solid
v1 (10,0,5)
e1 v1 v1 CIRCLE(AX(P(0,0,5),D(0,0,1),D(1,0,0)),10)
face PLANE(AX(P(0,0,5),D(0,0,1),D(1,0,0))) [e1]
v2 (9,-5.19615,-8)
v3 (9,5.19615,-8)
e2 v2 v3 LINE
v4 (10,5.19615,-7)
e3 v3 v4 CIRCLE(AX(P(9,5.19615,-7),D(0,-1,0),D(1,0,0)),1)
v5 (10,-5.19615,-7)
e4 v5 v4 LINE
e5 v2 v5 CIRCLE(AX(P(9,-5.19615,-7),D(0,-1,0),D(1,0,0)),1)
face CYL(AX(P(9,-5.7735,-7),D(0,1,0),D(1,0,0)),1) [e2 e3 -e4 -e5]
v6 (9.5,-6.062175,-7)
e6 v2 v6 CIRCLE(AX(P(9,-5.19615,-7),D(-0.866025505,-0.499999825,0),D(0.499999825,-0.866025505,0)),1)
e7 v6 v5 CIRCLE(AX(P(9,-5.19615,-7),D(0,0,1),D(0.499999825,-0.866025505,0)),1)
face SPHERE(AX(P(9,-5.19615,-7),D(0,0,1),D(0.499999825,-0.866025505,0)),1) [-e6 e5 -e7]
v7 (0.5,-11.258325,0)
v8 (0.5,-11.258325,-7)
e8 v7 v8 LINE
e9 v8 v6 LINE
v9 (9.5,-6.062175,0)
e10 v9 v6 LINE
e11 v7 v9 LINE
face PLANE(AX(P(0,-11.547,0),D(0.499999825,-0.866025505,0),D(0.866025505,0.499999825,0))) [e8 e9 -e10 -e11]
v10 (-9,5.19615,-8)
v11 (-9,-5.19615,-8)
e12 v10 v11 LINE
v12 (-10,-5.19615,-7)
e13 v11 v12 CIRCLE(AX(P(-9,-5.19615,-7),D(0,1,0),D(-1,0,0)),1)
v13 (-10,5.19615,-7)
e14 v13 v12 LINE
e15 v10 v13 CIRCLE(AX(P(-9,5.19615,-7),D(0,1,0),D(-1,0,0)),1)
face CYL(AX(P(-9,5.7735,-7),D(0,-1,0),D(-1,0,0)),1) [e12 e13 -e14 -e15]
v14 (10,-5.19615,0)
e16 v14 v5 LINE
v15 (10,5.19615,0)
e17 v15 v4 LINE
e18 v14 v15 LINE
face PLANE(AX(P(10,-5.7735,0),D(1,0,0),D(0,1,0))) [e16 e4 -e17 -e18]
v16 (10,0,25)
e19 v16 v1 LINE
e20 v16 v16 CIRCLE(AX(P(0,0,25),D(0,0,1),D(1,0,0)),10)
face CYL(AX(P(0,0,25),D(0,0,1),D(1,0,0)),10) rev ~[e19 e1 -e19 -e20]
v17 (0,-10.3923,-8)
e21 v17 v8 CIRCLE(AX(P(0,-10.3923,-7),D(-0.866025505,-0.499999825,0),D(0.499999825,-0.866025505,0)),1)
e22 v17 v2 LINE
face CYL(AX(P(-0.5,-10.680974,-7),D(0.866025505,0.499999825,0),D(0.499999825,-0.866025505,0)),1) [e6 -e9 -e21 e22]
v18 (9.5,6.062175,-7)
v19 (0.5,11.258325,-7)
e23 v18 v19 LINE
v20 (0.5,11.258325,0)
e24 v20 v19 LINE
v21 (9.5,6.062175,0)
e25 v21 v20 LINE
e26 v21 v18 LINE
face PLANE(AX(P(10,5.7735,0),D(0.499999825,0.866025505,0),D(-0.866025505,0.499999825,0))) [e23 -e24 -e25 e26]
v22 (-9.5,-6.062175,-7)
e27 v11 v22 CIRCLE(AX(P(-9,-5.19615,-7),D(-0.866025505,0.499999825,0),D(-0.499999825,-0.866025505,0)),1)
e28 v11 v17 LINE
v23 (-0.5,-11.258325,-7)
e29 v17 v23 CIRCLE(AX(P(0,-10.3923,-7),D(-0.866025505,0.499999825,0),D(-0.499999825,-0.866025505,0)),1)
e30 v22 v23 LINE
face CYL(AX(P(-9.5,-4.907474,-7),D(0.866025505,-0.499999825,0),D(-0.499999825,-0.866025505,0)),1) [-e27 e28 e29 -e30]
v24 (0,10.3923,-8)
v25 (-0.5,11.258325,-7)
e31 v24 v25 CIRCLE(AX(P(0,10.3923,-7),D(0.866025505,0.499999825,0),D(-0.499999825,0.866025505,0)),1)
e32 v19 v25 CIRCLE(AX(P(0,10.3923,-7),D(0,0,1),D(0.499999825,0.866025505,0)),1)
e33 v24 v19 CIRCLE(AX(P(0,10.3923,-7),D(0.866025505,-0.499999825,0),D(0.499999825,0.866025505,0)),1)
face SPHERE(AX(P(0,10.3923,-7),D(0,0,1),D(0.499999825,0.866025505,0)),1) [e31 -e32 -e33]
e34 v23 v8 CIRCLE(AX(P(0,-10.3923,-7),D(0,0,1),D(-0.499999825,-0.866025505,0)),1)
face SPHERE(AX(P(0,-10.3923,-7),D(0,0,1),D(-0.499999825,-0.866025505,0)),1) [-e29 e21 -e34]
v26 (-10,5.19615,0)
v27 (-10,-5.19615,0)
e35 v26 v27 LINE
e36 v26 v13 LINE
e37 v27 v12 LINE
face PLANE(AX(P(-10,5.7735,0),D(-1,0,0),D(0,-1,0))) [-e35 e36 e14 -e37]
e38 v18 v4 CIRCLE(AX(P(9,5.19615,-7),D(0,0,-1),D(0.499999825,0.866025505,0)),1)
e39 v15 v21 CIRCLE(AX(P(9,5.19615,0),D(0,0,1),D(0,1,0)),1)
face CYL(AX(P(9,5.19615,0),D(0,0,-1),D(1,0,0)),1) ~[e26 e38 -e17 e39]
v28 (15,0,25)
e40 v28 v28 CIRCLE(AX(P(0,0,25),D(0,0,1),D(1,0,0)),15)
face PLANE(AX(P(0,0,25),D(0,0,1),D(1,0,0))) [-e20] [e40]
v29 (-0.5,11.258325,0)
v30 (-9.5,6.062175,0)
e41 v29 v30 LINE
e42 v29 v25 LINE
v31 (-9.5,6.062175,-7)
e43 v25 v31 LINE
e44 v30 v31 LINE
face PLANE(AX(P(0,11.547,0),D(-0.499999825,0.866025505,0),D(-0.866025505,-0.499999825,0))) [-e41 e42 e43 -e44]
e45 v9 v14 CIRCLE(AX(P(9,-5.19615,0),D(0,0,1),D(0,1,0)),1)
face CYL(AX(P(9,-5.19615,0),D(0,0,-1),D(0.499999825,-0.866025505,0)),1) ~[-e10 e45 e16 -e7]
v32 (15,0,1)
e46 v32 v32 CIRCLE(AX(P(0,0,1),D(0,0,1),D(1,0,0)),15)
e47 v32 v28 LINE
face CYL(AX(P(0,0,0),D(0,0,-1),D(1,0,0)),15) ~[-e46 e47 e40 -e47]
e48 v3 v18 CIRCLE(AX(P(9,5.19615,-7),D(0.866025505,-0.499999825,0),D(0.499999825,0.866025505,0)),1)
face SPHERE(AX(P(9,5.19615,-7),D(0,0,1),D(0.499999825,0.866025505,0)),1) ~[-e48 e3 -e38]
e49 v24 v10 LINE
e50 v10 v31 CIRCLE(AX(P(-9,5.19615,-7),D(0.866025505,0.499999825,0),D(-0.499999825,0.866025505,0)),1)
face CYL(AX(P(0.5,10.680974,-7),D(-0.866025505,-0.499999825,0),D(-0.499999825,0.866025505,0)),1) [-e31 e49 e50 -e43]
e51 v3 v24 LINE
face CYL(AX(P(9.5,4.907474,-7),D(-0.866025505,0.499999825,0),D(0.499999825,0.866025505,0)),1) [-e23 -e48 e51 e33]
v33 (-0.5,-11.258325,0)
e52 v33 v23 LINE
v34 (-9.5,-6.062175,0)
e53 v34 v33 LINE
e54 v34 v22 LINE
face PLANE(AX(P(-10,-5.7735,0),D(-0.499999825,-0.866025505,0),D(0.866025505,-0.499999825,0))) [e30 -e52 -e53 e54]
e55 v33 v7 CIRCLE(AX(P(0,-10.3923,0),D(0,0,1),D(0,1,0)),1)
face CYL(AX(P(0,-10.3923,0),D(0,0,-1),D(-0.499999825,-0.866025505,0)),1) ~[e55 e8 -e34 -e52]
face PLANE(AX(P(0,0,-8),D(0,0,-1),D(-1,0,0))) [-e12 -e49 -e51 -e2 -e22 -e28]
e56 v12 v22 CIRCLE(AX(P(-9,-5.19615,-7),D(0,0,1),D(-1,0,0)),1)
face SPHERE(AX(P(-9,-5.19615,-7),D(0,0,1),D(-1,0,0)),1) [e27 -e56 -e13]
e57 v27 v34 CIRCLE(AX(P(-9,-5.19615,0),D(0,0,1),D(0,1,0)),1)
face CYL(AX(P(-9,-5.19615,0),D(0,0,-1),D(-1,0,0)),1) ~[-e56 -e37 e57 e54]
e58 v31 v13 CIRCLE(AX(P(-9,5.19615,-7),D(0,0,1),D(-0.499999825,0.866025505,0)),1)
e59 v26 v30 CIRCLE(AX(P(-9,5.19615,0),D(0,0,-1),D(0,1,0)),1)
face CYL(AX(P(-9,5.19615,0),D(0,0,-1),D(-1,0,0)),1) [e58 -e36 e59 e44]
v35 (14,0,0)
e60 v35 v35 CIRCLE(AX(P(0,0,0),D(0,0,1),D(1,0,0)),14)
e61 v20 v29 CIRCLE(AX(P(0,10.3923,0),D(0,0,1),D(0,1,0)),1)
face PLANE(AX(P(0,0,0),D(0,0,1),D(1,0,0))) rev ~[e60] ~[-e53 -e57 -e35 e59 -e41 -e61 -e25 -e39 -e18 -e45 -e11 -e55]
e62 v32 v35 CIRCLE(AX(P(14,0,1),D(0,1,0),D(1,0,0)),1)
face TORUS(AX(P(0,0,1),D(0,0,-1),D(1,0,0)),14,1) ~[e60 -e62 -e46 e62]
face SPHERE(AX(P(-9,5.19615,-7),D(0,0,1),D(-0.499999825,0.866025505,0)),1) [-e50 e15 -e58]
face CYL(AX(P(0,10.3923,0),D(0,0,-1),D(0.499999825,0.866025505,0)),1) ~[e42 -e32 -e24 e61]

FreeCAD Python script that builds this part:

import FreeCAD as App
import Part
import Sketcher
Q = App.Units.Quantity


def edges_at(feature, points):
    """Names of the edges that pass closest to the given points."""
    edges = feature.Shape.Edges
    near = lambda p: min(range(len(edges)), key=lambda i: edges[i].distToShape(Part.Vertex(*p))[0])
    return sorted({f"Edge{near(p) + 1}" for p in points})

doc = App.newDocument("Part")
params = doc.addObject("Spreadsheet::Sheet", "Params")
for row, (alias, value) in enumerate([
    ("sketch1_diameter", "30 mm"),
    ("pad1_length", "25 mm"),
    ("sketch2_diameter", "20 mm"),
    ("pocket1_length", "20 mm"),
    ("pad2_length", "8 mm"),
    ("fillet_radius", "1 mm"),
], start=1):
    params.set(f"A{row}", alias)
    params.set(f"B{row}", "=" + value)
    params.setAlias(f"B{row}", alias)

body = doc.addObject("PartDesign::Body", "Body")

# Sketch on XY plane
sketch1 = doc.addObject("Sketcher::SketchObject", "Sketch")
body.addObject(sketch1)
sketch1.AttachmentSupport = (doc.XY_Plane, [""])
sketch1.MapMode = "FlatFace"
sketch1.addGeometry(Part.Circle(App.Vector(0, 0, 0), App.Vector(0, 0, 1), 15), False)
sketch1.addConstraint(Sketcher.Constraint("Coincident", 0, 3, -1, 1))
sketch1.addConstraint(Sketcher.Constraint("Diameter", 0, 30.0))
sketch1.setExpression("Constraints[1]", "Params.sketch1_diameter")
pad1 = doc.addObject("PartDesign::Pad", "Pad")
body.addObject(pad1)
pad1.Profile = sketch1
pad1.setExpression("Length", "Params.pad1_length")

# Sketch on XY plane
sketch2 = doc.addObject("Sketcher::SketchObject", "Sketch001")
body.addObject(sketch2)
sketch2.AttachmentSupport = (doc.XY_Plane, [""])
sketch2.MapMode = "FlatFace"
sketch2.AttachmentOffset = App.Placement(App.Vector(0, 0, 25), App.Rotation())
sketch2.addGeometry(Part.Circle(App.Vector(0, 0, 0), App.Vector(0, 0, 1), 10), False)
sketch2.addConstraint(Sketcher.Constraint("Coincident", 0, 3, -1, 1))
sketch2.addConstraint(Sketcher.Constraint("Diameter", 0, 20.0))
sketch2.setExpression("Constraints[1]", "Params.sketch2_diameter")
pocket1 = doc.addObject("PartDesign::Pocket", "Pocket")
body.addObject(pocket1)
pocket1.Profile = sketch2
pocket1.setExpression("Length", "Params.pocket1_length")

# Sketch on XY plane
sketch3 = doc.addObject("Sketcher::SketchObject", "Sketch002")
body.addObject(sketch3)
sketch3.AttachmentSupport = (doc.XY_Plane, [""])
sketch3.MapMode = "FlatFace"
sketch3.addGeometry(Part.LineSegment(App.Vector(-10, -5.7735, 0), App.Vector(-10, 5.7735, 0)), False)
sketch3.addGeometry(Part.LineSegment(App.Vector(-10, 5.7735, 0), App.Vector(0, 11.547, 0)), False)
sketch3.addGeometry(Part.LineSegment(App.Vector(0, 11.547, 0), App.Vector(10, 5.7735, 0)), False)
sketch3.addGeometry(Part.LineSegment(App.Vector(10, 5.7735, 0), App.Vector(10, -5.7735, 0)), False)
sketch3.addGeometry(Part.LineSegment(App.Vector(10, -5.7735, 0), App.Vector(0, -11.547, 0)), False)
sketch3.addGeometry(Part.LineSegment(App.Vector(0, -11.547, 0), App.Vector(-10, -5.7735, 0)), False)
sketch3.addConstraint(Sketcher.Constraint("Coincident", 0, 2, 1, 1))
sketch3.addConstraint(Sketcher.Constraint("Coincident", 1, 2, 2, 1))
sketch3.addConstraint(Sketcher.Constraint("Coincident", 2, 2, 3, 1))
sketch3.addConstraint(Sketcher.Constraint("Coincident", 3, 2, 4, 1))
sketch3.addConstraint(Sketcher.Constraint("Coincident", 4, 2, 5, 1))
sketch3.addConstraint(Sketcher.Constraint("Coincident", 5, 2, 0, 1))
sketch3.addConstraint(Sketcher.Constraint("Vertical", 0))
sketch3.addConstraint(Sketcher.Constraint("Vertical", 3))
sketch3.addConstraint(Sketcher.Constraint("Symmetric", 0, 2, 3, 2, -1, 1))
sketch3.addConstraint(Sketcher.Constraint("Symmetric", 1, 2, 4, 2, -1, 1))
sketch3.addConstraint(Sketcher.Constraint("PointOnObject", 1, 2, -2))
sketch3.addConstraint(Sketcher.Constraint("Parallel", 2, 5))
sketch3.addConstraint(Sketcher.Constraint("Horizontal", 0, 2, 2, 2))
sketch3.addConstraint(Sketcher.Constraint("DistanceX", 0, 2, 2, 2, 20.0))
sketch3.addConstraint(Sketcher.Constraint("Angle", 1, Q("30 deg")))
sketch3.addConstraint(Sketcher.Constraint("DistanceY", 0, 1, 0, 2, 11.547))
pad2 = doc.addObject("PartDesign::Pad", "Pad001")
body.addObject(pad2)
pad2.Profile = sketch3
pad2.setExpression("Length", "Params.pad2_length")
pad2.Reversed = True
doc.recompute()

fillet = doc.addObject("PartDesign::Fillet", "Fillet")
body.addObject(fillet)
fillet.Base = (pad2, edges_at(pad2, [
    (-15, 0, 0),
    (5, 8.66, -8),
    (-5, 8.66, -8),
    (-10, 0, -8),
    (-5, -8.66, -8),
    (5, -8.66, -8),
    (10, 0, -8),
    (10, 5.774, -4),
    (0, 11.547, -4),
    (-10, 5.774, -4),
    (-10, -5.774, -4),
    (0, -11.547, -4),
    (10, -5.774, -4),
]))
fillet.setExpression("Radius", "Params.fillet_radius")

doc.recompute()
